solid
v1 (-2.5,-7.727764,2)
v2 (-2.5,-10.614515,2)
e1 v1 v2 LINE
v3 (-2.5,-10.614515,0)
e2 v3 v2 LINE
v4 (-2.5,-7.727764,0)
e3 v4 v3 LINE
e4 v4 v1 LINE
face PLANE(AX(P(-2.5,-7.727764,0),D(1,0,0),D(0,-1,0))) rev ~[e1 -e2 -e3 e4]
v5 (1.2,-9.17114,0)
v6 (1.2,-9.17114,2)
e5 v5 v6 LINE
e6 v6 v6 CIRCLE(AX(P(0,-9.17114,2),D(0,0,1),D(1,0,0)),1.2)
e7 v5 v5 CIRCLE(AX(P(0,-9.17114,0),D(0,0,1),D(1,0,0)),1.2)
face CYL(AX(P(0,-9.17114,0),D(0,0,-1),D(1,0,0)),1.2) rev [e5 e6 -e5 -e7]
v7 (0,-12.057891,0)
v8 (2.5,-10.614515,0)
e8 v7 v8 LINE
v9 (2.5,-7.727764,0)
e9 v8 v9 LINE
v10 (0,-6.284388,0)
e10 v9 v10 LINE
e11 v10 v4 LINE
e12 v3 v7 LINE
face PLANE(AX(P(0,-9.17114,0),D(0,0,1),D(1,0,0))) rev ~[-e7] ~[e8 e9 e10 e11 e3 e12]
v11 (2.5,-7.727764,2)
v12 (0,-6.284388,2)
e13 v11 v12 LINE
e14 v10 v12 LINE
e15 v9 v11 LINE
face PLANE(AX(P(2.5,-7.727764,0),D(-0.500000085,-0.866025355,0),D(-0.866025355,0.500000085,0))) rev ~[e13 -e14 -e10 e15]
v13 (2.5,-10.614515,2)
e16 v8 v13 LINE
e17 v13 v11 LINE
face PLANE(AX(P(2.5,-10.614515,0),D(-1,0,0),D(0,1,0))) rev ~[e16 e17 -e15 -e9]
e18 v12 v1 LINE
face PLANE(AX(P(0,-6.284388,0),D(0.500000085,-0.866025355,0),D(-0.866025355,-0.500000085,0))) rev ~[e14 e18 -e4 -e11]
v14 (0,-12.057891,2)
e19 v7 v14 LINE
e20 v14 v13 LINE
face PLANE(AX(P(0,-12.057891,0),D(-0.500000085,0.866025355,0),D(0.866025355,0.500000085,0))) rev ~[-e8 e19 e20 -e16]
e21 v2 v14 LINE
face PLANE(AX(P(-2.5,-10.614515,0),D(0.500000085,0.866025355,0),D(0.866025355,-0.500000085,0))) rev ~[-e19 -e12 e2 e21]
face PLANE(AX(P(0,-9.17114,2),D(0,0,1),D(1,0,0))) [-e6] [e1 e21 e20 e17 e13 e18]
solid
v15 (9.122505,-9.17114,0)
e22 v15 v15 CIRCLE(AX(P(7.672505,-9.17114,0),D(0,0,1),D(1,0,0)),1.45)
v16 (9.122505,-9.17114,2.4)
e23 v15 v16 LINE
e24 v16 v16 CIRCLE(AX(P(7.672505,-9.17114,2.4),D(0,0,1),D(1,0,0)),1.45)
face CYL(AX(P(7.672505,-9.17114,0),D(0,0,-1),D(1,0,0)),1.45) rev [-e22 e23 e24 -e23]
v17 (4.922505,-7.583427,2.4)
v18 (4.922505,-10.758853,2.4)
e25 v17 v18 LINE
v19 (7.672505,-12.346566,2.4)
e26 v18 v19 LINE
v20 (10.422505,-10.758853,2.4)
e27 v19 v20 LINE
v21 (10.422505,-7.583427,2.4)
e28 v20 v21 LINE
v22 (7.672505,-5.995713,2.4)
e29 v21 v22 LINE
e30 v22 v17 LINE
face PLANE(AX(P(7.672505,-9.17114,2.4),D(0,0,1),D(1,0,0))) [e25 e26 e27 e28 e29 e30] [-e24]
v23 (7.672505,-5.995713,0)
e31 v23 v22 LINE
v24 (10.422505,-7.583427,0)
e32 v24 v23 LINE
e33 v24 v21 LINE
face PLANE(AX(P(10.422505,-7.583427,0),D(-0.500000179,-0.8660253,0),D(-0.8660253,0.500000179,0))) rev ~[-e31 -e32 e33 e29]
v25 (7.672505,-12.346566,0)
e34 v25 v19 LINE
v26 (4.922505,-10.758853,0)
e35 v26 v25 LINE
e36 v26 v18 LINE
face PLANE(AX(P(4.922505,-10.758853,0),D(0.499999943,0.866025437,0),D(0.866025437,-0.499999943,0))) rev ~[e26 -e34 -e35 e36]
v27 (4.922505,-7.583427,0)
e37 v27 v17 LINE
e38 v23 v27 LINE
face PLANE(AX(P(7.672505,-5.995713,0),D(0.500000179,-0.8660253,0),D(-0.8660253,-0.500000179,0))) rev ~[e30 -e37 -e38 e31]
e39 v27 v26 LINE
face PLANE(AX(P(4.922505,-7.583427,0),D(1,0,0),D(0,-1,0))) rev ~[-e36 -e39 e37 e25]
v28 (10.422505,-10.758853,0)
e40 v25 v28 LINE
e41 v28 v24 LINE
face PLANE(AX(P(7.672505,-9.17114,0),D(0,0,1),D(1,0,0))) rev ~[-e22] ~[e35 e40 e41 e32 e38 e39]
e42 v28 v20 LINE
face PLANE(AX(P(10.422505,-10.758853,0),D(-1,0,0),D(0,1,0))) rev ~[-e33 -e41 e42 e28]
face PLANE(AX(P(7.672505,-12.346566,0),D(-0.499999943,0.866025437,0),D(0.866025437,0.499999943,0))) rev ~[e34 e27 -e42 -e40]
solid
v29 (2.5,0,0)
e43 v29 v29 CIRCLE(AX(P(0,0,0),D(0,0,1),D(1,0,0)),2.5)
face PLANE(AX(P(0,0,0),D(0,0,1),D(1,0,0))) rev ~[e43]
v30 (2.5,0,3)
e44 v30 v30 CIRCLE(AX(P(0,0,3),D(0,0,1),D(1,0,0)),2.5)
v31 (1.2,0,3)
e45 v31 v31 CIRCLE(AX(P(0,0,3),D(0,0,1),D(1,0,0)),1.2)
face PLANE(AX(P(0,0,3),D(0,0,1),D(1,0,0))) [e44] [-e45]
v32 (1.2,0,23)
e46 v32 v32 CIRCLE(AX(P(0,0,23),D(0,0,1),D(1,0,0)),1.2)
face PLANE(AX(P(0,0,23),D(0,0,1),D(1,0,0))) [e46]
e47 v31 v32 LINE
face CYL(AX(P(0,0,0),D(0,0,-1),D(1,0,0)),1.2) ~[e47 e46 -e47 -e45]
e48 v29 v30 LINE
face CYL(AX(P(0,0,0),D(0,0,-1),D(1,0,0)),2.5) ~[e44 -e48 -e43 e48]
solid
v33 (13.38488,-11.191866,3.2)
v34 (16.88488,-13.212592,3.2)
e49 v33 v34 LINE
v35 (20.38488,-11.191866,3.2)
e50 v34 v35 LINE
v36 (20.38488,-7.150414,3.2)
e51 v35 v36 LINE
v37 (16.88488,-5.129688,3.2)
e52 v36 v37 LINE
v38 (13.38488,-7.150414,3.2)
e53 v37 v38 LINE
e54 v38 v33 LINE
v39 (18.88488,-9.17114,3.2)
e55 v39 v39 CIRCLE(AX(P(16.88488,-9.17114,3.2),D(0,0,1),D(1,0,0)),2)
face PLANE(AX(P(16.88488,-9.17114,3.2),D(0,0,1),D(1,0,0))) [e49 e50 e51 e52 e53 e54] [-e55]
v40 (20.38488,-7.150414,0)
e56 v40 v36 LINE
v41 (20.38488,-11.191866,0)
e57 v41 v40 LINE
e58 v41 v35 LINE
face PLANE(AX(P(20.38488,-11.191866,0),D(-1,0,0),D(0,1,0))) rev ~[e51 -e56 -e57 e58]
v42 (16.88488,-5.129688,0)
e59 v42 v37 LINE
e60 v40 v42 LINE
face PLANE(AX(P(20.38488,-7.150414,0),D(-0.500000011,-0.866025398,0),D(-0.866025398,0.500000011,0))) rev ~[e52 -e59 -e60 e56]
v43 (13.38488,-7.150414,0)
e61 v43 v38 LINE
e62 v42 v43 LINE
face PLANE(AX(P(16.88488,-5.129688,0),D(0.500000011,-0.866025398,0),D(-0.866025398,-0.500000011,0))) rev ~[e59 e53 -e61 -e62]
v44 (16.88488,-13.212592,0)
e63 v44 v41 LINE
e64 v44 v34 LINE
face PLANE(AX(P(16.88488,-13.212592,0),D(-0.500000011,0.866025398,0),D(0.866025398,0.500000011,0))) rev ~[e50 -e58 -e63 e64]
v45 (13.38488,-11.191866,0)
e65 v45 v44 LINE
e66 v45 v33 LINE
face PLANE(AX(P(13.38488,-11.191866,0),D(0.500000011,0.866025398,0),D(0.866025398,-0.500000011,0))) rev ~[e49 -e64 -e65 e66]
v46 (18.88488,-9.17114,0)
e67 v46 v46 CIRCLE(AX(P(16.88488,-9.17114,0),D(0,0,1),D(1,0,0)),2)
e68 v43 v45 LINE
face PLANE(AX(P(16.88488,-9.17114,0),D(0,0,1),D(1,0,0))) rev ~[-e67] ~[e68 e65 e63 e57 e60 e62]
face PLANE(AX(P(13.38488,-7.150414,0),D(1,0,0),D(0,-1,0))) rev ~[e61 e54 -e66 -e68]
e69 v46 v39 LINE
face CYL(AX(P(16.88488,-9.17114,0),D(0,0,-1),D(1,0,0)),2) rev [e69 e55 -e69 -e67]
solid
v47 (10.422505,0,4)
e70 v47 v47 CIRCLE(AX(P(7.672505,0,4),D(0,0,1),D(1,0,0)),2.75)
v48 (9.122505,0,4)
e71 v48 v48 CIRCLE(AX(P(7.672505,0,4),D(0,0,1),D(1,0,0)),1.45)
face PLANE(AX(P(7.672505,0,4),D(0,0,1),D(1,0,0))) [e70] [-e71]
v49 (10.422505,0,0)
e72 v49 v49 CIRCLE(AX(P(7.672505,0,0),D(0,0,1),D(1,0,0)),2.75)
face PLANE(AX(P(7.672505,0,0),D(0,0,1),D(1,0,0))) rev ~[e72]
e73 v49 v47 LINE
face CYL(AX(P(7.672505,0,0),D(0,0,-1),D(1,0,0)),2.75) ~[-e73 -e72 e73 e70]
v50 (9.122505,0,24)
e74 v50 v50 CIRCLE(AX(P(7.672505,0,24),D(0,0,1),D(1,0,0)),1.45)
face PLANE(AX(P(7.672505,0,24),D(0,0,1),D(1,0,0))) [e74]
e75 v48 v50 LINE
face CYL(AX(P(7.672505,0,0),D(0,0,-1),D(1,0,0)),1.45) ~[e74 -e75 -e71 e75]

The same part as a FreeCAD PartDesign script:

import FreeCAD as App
import Part
import Sketcher

V = App.Vector
Q = App.Units.Quantity


def add_polygon(sketch, points):
    """Adds a closed chain of lines whose ends are joined by coincident constraints."""
    first, n = sketch.GeometryCount, len(points)
    for a, b in zip(points, points[1:] + points[:1]):
        sketch.addGeometry(Part.LineSegment(App.Vector(*a, 0), App.Vector(*b, 0)), False)
    for i in range(n):
        sketch.addConstraint(Sketcher.Constraint("Coincident", first + i, 2, first + (i + 1) % n, 1))

doc = App.newDocument("Part")
params = doc.addObject("Spreadsheet::Sheet", "Params")
for row, (alias, value) in enumerate([
    ("sketch1_diameter", "2.4 mm"),
    ("pad1_length", "2 mm"),
    ("sketch2_diameter", "2.4 mm"),
    ("pad2_length", "23 mm"),
    ("sketch3_diameter", "5 mm"),
    ("sketch3_diameter2", "2.4 mm"),
    ("pad3_length", "3 mm"),
    ("sketch4_diameter", "2.9 mm"),
    ("pad4_length", "2.4 mm"),
    ("sketch5_diameter", "2.9 mm"),
    ("pad5_length", "24 mm"),
    ("sketch6_diameter", "5.5 mm"),
    ("sketch6_diameter2", "2.9 mm"),
    ("pad6_length", "4 mm"),
    ("sketch7_diameter", "4 mm"),
    ("pad7_length", "3.2 mm"),
], start=1):
    params.set(f"A{row}", alias)
    params.set(f"B{row}", "=" + value)
    params.setAlias(f"B{row}", alias)

body = doc.addObject("PartDesign::Body", "Body")

# Sketch on XY plane
sketch1 = body.newObject("Sketcher::SketchObject", "Sketch")
sketch1.AttachmentSupport = (doc.getObject("XY_Plane"), [""])
sketch1.MapMode = "FlatFace"
add_polygon(sketch1, [(2.5, -10.6), (2.5, -7.7), (0, -6.3), (-2.5, -7.7), (-2.5, -10.6), (0, -12.1)])  # lines 0-5
sketch1.addGeometry(Part.Circle(V(0, -9.2, 0), V(0, 0, 1), 1.2), False)  # 6
sketch1.addConstraint(Sketcher.Constraint("Vertical", 0))
sketch1.addConstraint(Sketcher.Constraint("Vertical", 3))
sketch1.addConstraint(Sketcher.Constraint("Symmetric", 0, 2, 2, 2, -2))
sketch1.addConstraint(Sketcher.Constraint("PointOnObject", 6, 3, -2))
sketch1.addConstraint(Sketcher.Constraint("PointOnObject", 1, 2, -2))
sketch1.addConstraint(Sketcher.Constraint("PointOnObject", 4, 2, -2))
sketch1.addConstraint(Sketcher.Constraint("Parallel", 1, 4))
sketch1.addConstraint(Sketcher.Constraint("Parallel", 2, 5))
sketch1.addConstraint(Sketcher.Constraint("Diameter", 6, Q("2.4 mm")))
sketch1.addConstraint(Sketcher.Constraint("Angle", 1, Q("149.999994 deg")))
sketch1.addConstraint(Sketcher.Constraint("DistanceX", 2, 2, 0, 2, Q("5 mm")))
sketch1.addConstraint(Sketcher.Constraint("DistanceY", 0, 1, 0, 2, Q("2.886751 mm")))
sketch1.addConstraint(Sketcher.Constraint("DistanceY", 6, 3, -1, 1, Q("9.17114 mm")))
sketch1.addConstraint(Sketcher.Constraint("DistanceY", 4, 2, -1, 1, Q("12.057891 mm")))
sketch1.setExpression("Constraints[14]", "Params.sketch1_diameter")
pad1 = body.newObject("PartDesign::Pad", "Pad")
pad1.Profile = sketch1
pad1.setExpression("Length", "Params.pad1_length")
body2 = doc.addObject("PartDesign::Body", "Body001")

# Sketch on XY plane
sketch2 = body2.newObject("Sketcher::SketchObject", "Sketch001")
sketch2.AttachmentSupport = (doc.getObject("XY_Plane001"), [""])
sketch2.MapMode = "FlatFace"
sketch2.addGeometry(Part.Circle(V(0, 0, 0), V(0, 0, 1), 1.2), False)
sketch2.addConstraint(Sketcher.Constraint("Coincident", 0, 3, -1, 1))
sketch2.addConstraint(Sketcher.Constraint("Diameter", 0, Q("2.4 mm")))
sketch2.setExpression("Constraints[1]", "Params.sketch2_diameter")
pad2 = body2.newObject("PartDesign::Pad", "Pad001")
pad2.Profile = sketch2
pad2.setExpression("Length", "Params.pad2_length")

# Sketch on XY plane
sketch3 = body2.newObject("Sketcher::SketchObject", "Sketch002")
sketch3.AttachmentSupport = (doc.getObject("XY_Plane001"), [""])
sketch3.MapMode = "FlatFace"
sketch3.addGeometry(Part.Circle(V(0, 0, 0), V(0, 0, 1), 2.5), False)
sketch3.addGeometry(Part.Circle(V(0, 0, 0), V(0, 0, 1), 1.2), False)
sketch3.addConstraint(Sketcher.Constraint("Coincident", 0, 3, -1, 1))
sketch3.addConstraint(Sketcher.Constraint("Coincident", 1, 3, -1, 1))
sketch3.addConstraint(Sketcher.Constraint("Diameter", 0, Q("5 mm")))
sketch3.addConstraint(Sketcher.Constraint("Diameter", 1, Q("2.4 mm")))
sketch3.setExpression("Constraints[2]", "Params.sketch3_diameter")
sketch3.setExpression("Constraints[3]", "Params.sketch3_diameter2")
pad3 = body2.newObject("PartDesign::Pad", "Pad002")
pad3.Profile = sketch3
pad3.setExpression("Length", "Params.pad3_length")
body3 = doc.addObject("PartDesign::Body", "Body002")

# Sketch on XY plane
sketch4 = body3.newObject("Sketcher::SketchObject", "Sketch003")
sketch4.AttachmentSupport = (doc.getObject("XY_Plane002"), [""])
sketch4.MapMode = "FlatFace"
add_polygon(sketch4, [(10.4, -10.8), (10.4, -7.6), (7.7, -6), (4.9, -7.6), (4.9, -10.8), (7.7, -12.3)])  # lines 0-5
sketch4.addGeometry(Part.Circle(V(7.7, -9.2, 0), V(0, 0, 1), 1.4), False)  # 6
sketch4.addConstraint(Sketcher.Constraint("Vertical", 0))
sketch4.addConstraint(Sketcher.Constraint("Vertical", 3))
sketch4.addConstraint(Sketcher.Constraint("Parallel", 1, 4))
sketch4.addConstraint(Sketcher.Constraint("Parallel", 2, 5))
sketch4.addConstraint(Sketcher.Constraint("Horizontal", 0, 2, 2, 2))
sketch4.addConstraint(Sketcher.Constraint("Horizontal", 3, 2, 5, 2))
sketch4.addConstraint(Sketcher.Constraint("Vertical", 6, 3, 1, 2))
sketch4.addConstraint(Sketcher.Constraint("Vertical", 1, 2, 4, 2))
sketch4.addConstraint(Sketcher.Constraint("Diameter", 6, Q("2.9 mm")))
sketch4.addConstraint(Sketcher.Constraint("Angle", 1, Q("149.999988 deg")))
sketch4.addConstraint(Sketcher.Constraint("DistanceX", 2, 2, 0, 2, Q("5.5 mm")))
sketch4.addConstraint(Sketcher.Constraint("DistanceY", 0, 1, 0, 2, Q("3.175426 mm")))
sketch4.addConstraint(Sketcher.Constraint("DistanceY", 6, 3, -1, 1, Q("9.17114 mm")))
sketch4.addConstraint(Sketcher.Constraint("DistanceX", -1, 1, 6, 3, Q("7.672505 mm")))
sketch4.addConstraint(Sketcher.Constraint("DistanceY", 0, 2, -1, 1, Q("7.583427 mm")))
sketch4.setExpression("Constraints[14]", "Params.sketch4_diameter")
pad4 = body3.newObject("PartDesign::Pad", "Pad003")
pad4.Profile = sketch4
pad4.setExpression("Length", "Params.pad4_length")
body4 = doc.addObject("PartDesign::Body", "Body003")

# Sketch on XY plane
sketch5 = body4.newObject("Sketcher::SketchObject", "Sketch004")
sketch5.AttachmentSupport = (doc.getObject("XY_Plane003"), [""])
sketch5.MapMode = "FlatFace"
sketch5.addGeometry(Part.Circle(V(7.7, 0, 0), V(0, 0, 1), 1.4), False)
sketch5.addConstraint(Sketcher.Constraint("PointOnObject", 0, 3, -1))
sketch5.addConstraint(Sketcher.Constraint("Diameter", 0, Q("2.9 mm")))
sketch5.addConstraint(Sketcher.Constraint("DistanceX", -1, 1, 0, 3, Q("7.672505 mm")))
sketch5.setExpression("Constraints[1]", "Params.sketch5_diameter")
pad5 = body4.newObject("PartDesign::Pad", "Pad004")
pad5.Profile = sketch5
pad5.setExpression("Length", "Params.pad5_length")

# Sketch on XY plane
sketch6 = body4.newObject("Sketcher::SketchObject", "Sketch005")
sketch6.AttachmentSupport = (doc.getObject("XY_Plane003"), [""])
sketch6.MapMode = "FlatFace"
sketch6.addGeometry(Part.Circle(V(7.7, 0, 0), V(0, 0, 1), 2.8), False)
sketch6.addGeometry(Part.Circle(V(7.7, 0, 0), V(0, 0, 1), 1.4), False)
sketch6.addConstraint(Sketcher.Constraint("Coincident", 1, 3, 0, 3))
sketch6.addConstraint(Sketcher.Constraint("PointOnObject", 0, 3, -1))
sketch6.addConstraint(Sketcher.Constraint("Diameter", 0, Q("5.5 mm")))
sketch6.addConstraint(Sketcher.Constraint("Diameter", 1, Q("2.9 mm")))
sketch6.addConstraint(Sketcher.Constraint("DistanceX", -1, 1, 0, 3, Q("7.672505 mm")))
sketch6.setExpression("Constraints[2]", "Params.sketch6_diameter")
sketch6.setExpression("Constraints[3]", "Params.sketch6_diameter2")
pad6 = body4.newObject("PartDesign::Pad", "Pad005")
pad6.Profile = sketch6
pad6.setExpression("Length", "Params.pad6_length")
body5 = doc.addObject("PartDesign::Body", "Body004")

# Sketch on XY plane
sketch7 = body5.newObject("Sketcher::SketchObject", "Sketch006")
sketch7.AttachmentSupport = (doc.getObject("XY_Plane004"), [""])
sketch7.MapMode = "FlatFace"
add_polygon(sketch7, [(20.4, -11.2), (20.4, -7.2), (16.9, -5.1), (13.4, -7.2), (13.4, -11.2), (16.9, -13.2)])  # lines 0-5
sketch7.addGeometry(Part.Circle(V(16.9, -9.2, 0), V(0, 0, 1), 2), False)  # 6
sketch7.addConstraint(Sketcher.Constraint("Vertical", 0))
sketch7.addConstraint(Sketcher.Constraint("Vertical", 3))
sketch7.addConstraint(Sketcher.Constraint("Parallel", 1, 4))
sketch7.addConstraint(Sketcher.Constraint("Parallel", 2, 5))
sketch7.addConstraint(Sketcher.Constraint("Horizontal", 0, 2, 2, 2))
sketch7.addConstraint(Sketcher.Constraint("Horizontal", 3, 2, 5, 2))
sketch7.addConstraint(Sketcher.Constraint("Vertical", 6, 3, 1, 2))
sketch7.addConstraint(Sketcher.Constraint("Vertical", 1, 2, 4, 2))
sketch7.addConstraint(Sketcher.Constraint("Diameter", 6, Q("4 mm")))
sketch7.addConstraint(Sketcher.Constraint("Angle", 1, Q("149.999999 deg")))
sketch7.addConstraint(Sketcher.Constraint("DistanceX", 2, 2, 0, 2, Q("7 mm")))
sketch7.addConstraint(Sketcher.Constraint("DistanceY", 0, 1, 0, 2, Q("4.041452 mm")))
sketch7.addConstraint(Sketcher.Constraint("DistanceX", -1, 1, 6, 3, Q("16.88488 mm")))
sketch7.addConstraint(Sketcher.Constraint("DistanceY", 6, 3, -1, 1, Q("9.17114 mm")))
sketch7.addConstraint(Sketcher.Constraint("DistanceY", 6, 3, 1, 2, Q("4.041452 mm")))
sketch7.setExpression("Constraints[14]", "Params.sketch7_diameter")
pad7 = body5.newObject("PartDesign::Pad", "Pad006")
pad7.Profile = sketch7
pad7.setExpression("Length", "Params.pad7_length")

doc.recompute()
